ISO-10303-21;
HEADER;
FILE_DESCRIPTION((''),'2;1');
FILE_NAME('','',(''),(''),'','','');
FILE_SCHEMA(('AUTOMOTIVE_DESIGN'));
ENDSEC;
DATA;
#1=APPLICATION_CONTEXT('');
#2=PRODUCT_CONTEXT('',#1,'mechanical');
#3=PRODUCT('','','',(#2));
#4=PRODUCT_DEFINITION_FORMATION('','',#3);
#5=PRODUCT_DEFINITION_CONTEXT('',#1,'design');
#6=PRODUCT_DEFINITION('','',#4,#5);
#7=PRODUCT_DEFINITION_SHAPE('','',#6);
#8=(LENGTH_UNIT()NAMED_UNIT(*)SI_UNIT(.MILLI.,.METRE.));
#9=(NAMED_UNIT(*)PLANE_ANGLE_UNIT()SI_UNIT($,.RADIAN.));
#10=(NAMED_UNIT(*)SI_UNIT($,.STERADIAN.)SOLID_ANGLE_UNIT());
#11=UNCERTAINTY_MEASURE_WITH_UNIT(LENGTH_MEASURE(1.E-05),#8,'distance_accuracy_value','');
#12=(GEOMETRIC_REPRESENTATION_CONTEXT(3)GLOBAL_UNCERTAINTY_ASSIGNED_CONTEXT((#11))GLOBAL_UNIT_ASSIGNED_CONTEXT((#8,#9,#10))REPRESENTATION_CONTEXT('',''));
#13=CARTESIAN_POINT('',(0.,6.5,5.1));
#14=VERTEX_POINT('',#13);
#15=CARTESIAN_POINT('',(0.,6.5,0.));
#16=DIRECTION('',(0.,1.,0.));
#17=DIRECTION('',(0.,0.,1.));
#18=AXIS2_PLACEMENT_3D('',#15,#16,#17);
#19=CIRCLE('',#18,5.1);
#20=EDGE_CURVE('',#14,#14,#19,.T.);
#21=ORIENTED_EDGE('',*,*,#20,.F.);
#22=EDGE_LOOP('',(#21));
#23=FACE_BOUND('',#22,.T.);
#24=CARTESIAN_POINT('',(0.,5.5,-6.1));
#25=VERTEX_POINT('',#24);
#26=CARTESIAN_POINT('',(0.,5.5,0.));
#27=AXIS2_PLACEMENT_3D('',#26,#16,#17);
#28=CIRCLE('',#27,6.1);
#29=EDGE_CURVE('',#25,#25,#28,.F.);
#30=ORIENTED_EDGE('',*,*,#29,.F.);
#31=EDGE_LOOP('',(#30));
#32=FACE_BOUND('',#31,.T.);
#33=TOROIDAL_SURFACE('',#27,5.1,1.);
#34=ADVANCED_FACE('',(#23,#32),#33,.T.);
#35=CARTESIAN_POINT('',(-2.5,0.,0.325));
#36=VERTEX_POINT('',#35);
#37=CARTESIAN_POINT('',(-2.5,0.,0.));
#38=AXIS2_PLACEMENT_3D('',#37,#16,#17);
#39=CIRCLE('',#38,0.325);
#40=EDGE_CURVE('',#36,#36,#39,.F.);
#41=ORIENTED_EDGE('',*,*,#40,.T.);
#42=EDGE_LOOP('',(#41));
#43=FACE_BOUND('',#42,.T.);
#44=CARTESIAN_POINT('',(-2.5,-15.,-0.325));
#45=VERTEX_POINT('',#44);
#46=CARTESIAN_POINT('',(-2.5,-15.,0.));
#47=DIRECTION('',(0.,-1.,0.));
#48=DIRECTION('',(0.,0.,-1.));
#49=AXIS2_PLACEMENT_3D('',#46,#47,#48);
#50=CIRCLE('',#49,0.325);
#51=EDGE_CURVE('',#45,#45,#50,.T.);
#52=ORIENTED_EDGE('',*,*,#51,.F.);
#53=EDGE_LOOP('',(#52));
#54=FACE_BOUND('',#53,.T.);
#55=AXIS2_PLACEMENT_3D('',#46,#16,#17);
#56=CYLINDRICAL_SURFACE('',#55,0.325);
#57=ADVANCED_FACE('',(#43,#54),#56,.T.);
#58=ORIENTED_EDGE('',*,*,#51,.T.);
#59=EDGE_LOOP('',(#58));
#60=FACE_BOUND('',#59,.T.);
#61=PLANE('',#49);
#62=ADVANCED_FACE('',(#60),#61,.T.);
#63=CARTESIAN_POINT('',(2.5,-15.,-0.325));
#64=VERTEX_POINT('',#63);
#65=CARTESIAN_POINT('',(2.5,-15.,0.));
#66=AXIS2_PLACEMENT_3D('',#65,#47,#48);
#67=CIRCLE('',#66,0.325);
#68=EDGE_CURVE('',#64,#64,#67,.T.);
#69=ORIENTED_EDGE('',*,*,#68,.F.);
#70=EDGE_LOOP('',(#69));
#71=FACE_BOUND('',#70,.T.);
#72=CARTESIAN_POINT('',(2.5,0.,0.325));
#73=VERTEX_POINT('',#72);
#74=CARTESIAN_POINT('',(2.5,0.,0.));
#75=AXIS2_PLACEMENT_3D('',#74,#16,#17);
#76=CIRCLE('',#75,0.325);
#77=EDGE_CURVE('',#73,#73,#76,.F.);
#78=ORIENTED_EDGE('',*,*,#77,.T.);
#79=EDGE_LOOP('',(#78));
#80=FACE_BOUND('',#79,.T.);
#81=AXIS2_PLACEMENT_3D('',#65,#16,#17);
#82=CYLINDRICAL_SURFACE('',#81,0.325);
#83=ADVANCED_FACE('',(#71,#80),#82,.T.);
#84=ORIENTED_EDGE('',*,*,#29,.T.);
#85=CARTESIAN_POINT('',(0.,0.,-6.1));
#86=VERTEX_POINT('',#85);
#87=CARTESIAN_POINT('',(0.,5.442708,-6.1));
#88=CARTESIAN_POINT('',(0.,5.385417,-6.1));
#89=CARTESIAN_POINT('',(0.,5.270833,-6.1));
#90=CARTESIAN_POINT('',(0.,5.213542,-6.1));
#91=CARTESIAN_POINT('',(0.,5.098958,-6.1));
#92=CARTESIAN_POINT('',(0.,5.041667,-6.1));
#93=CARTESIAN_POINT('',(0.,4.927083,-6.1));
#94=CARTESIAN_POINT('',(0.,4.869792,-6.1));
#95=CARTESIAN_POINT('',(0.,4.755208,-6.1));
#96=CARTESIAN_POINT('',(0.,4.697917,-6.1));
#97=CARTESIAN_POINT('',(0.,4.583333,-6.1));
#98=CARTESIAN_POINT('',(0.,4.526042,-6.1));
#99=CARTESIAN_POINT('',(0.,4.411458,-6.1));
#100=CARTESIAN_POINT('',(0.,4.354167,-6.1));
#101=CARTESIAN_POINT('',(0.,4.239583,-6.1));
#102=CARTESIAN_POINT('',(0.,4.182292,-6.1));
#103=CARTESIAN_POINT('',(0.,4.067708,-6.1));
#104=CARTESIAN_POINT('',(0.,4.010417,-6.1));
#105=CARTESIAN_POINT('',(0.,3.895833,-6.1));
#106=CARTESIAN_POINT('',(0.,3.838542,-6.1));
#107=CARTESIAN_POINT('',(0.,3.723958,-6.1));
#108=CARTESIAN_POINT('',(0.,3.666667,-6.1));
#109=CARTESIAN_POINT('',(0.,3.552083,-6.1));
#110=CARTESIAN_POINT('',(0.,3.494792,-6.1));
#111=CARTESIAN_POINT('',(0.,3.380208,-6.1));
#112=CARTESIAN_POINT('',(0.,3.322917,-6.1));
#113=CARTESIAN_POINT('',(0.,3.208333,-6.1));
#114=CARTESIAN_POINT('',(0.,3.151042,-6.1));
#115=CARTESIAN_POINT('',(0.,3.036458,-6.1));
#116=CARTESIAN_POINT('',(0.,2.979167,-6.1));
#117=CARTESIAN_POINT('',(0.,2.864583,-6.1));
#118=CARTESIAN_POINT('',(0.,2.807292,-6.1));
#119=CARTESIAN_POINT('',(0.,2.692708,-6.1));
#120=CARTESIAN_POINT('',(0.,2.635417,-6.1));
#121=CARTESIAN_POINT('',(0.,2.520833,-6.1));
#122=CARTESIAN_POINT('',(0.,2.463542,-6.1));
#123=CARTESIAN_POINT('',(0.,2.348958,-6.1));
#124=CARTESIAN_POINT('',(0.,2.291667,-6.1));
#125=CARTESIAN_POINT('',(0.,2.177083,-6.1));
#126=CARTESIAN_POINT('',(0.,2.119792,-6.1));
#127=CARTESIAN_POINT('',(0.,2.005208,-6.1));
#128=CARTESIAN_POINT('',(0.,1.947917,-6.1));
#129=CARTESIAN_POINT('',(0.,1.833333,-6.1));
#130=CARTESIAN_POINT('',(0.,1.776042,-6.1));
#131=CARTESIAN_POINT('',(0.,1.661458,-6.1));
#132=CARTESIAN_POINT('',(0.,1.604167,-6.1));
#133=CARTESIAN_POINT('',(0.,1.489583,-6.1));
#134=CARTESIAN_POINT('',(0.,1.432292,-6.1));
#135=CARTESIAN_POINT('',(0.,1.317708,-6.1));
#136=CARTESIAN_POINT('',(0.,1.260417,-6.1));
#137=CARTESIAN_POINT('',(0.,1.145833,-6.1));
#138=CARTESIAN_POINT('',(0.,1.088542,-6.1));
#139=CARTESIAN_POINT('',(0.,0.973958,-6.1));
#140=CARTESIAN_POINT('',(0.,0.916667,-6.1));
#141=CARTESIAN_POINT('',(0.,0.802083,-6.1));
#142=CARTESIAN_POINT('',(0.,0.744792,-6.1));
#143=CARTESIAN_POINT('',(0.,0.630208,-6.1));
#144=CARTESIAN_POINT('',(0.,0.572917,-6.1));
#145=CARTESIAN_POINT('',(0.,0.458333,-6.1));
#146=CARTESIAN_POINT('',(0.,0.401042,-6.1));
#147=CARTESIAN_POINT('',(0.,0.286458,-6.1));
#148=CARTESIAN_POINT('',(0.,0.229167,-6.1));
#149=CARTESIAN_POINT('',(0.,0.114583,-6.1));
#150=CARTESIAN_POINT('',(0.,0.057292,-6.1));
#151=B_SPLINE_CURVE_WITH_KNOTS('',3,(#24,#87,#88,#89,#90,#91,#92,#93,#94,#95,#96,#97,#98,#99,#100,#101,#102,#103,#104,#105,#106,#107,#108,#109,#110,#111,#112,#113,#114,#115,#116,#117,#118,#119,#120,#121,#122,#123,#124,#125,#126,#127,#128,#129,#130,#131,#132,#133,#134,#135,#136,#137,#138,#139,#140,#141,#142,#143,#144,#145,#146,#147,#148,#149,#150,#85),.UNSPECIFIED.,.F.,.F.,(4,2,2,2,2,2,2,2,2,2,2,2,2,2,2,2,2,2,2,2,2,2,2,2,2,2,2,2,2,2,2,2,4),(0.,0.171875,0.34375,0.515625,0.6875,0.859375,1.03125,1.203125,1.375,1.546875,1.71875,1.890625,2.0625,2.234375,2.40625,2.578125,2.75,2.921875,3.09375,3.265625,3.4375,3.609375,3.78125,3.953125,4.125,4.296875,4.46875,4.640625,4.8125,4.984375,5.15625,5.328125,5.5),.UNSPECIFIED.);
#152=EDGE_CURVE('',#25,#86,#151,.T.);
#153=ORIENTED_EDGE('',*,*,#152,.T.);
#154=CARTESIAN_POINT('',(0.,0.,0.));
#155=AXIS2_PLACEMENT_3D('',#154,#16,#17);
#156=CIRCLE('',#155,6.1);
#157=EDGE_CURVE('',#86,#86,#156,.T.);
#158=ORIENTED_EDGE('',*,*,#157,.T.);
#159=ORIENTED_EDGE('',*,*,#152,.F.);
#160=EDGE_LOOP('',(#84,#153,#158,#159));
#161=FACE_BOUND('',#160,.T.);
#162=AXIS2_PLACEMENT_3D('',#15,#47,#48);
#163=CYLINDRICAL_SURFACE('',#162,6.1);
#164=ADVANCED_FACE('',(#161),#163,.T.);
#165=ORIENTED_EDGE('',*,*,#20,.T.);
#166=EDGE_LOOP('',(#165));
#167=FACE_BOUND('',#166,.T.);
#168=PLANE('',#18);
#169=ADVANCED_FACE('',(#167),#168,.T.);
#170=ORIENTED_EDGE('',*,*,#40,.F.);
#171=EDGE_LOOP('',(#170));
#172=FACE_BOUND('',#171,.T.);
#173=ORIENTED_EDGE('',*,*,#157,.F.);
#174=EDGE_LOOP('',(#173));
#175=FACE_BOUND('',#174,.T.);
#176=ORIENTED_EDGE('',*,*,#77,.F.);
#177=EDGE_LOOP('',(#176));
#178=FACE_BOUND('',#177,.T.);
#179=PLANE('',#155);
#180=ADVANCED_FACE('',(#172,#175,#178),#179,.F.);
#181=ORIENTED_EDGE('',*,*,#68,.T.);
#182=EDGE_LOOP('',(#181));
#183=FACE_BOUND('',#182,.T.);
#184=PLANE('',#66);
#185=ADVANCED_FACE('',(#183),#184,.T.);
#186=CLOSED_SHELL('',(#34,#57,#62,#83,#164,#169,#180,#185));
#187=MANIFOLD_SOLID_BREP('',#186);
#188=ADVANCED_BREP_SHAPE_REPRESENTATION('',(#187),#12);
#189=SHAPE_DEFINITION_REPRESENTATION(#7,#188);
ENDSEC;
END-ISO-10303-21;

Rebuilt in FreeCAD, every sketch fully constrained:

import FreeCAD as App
import Part
import Sketcher

V = App.Vector
Q = App.Units.Quantity


def edges_at(feature, points):
    """Names of the edges that pass closest to the given points."""
    edges = feature.Shape.Edges
    near = lambda p: min(range(len(edges)), key=lambda i: edges[i].distToShape(Part.Vertex(*p))[0])
    return sorted({f"Edge{near(p) + 1}" for p in points})

doc = App.newDocument("Part")
body = doc.addObject("PartDesign::Body", "Body")

# Sketch on XZ plane
sketch1 = body.newObject("Sketcher::SketchObject", "Sketch")
sketch1.AttachmentSupport = (doc.getObject("XZ_Plane"), [""])
sketch1.MapMode = "FlatFace"
sketch1.addGeometry(Part.Circle(V(0, 0, 0), V(0, 0, 1), 6), False)
sketch1.addConstraint(Sketcher.Constraint("Coincident", 0, 3, -1, 1))
sketch1.addConstraint(Sketcher.Constraint("Diameter", 0, Q("12.2 mm")))
pad1 = body.newObject("PartDesign::Pad", "Pad")
pad1.Profile = sketch1
pad1.Length = 6.5
pad1.Reversed = True

# Sketch on XZ plane
sketch2 = body.newObject("Sketcher::SketchObject", "Sketch001")
sketch2.AttachmentSupport = (doc.getObject("XZ_Plane"), [""])
sketch2.MapMode = "FlatFace"
sketch2.addGeometry(Part.Circle(V(-2.5, 0, 0), V(0, 0, 1), 0.33), False)
sketch2.addGeometry(Part.Circle(V(2.5, 0, 0), V(0, 0, 1), 0.33), False)
sketch2.addConstraint(Sketcher.Constraint("Equal", 0, 1))
sketch2.addConstraint(Sketcher.Constraint("Symmetric", 0, 3, 1, 3, -1, 1))
sketch2.addConstraint(Sketcher.Constraint("PointOnObject", 0, 3, -1))
sketch2.addConstraint(Sketcher.Constraint("Diameter", 0, Q("0.65 mm")))
sketch2.addConstraint(Sketcher.Constraint("DistanceX", 0, 3, 1, 3, Q("5 mm")))
pad2 = body.newObject("PartDesign::Pad", "Pad001")
pad2.Profile = sketch2
pad2.Length = 15
doc.recompute()

fillet = body.newObject("PartDesign::Fillet", "Fillet")
fillet.Base = (pad2, edges_at(pad2, [(0, 6.5, 6.1)]))
fillet.Radius = 1

doc.recompute()
